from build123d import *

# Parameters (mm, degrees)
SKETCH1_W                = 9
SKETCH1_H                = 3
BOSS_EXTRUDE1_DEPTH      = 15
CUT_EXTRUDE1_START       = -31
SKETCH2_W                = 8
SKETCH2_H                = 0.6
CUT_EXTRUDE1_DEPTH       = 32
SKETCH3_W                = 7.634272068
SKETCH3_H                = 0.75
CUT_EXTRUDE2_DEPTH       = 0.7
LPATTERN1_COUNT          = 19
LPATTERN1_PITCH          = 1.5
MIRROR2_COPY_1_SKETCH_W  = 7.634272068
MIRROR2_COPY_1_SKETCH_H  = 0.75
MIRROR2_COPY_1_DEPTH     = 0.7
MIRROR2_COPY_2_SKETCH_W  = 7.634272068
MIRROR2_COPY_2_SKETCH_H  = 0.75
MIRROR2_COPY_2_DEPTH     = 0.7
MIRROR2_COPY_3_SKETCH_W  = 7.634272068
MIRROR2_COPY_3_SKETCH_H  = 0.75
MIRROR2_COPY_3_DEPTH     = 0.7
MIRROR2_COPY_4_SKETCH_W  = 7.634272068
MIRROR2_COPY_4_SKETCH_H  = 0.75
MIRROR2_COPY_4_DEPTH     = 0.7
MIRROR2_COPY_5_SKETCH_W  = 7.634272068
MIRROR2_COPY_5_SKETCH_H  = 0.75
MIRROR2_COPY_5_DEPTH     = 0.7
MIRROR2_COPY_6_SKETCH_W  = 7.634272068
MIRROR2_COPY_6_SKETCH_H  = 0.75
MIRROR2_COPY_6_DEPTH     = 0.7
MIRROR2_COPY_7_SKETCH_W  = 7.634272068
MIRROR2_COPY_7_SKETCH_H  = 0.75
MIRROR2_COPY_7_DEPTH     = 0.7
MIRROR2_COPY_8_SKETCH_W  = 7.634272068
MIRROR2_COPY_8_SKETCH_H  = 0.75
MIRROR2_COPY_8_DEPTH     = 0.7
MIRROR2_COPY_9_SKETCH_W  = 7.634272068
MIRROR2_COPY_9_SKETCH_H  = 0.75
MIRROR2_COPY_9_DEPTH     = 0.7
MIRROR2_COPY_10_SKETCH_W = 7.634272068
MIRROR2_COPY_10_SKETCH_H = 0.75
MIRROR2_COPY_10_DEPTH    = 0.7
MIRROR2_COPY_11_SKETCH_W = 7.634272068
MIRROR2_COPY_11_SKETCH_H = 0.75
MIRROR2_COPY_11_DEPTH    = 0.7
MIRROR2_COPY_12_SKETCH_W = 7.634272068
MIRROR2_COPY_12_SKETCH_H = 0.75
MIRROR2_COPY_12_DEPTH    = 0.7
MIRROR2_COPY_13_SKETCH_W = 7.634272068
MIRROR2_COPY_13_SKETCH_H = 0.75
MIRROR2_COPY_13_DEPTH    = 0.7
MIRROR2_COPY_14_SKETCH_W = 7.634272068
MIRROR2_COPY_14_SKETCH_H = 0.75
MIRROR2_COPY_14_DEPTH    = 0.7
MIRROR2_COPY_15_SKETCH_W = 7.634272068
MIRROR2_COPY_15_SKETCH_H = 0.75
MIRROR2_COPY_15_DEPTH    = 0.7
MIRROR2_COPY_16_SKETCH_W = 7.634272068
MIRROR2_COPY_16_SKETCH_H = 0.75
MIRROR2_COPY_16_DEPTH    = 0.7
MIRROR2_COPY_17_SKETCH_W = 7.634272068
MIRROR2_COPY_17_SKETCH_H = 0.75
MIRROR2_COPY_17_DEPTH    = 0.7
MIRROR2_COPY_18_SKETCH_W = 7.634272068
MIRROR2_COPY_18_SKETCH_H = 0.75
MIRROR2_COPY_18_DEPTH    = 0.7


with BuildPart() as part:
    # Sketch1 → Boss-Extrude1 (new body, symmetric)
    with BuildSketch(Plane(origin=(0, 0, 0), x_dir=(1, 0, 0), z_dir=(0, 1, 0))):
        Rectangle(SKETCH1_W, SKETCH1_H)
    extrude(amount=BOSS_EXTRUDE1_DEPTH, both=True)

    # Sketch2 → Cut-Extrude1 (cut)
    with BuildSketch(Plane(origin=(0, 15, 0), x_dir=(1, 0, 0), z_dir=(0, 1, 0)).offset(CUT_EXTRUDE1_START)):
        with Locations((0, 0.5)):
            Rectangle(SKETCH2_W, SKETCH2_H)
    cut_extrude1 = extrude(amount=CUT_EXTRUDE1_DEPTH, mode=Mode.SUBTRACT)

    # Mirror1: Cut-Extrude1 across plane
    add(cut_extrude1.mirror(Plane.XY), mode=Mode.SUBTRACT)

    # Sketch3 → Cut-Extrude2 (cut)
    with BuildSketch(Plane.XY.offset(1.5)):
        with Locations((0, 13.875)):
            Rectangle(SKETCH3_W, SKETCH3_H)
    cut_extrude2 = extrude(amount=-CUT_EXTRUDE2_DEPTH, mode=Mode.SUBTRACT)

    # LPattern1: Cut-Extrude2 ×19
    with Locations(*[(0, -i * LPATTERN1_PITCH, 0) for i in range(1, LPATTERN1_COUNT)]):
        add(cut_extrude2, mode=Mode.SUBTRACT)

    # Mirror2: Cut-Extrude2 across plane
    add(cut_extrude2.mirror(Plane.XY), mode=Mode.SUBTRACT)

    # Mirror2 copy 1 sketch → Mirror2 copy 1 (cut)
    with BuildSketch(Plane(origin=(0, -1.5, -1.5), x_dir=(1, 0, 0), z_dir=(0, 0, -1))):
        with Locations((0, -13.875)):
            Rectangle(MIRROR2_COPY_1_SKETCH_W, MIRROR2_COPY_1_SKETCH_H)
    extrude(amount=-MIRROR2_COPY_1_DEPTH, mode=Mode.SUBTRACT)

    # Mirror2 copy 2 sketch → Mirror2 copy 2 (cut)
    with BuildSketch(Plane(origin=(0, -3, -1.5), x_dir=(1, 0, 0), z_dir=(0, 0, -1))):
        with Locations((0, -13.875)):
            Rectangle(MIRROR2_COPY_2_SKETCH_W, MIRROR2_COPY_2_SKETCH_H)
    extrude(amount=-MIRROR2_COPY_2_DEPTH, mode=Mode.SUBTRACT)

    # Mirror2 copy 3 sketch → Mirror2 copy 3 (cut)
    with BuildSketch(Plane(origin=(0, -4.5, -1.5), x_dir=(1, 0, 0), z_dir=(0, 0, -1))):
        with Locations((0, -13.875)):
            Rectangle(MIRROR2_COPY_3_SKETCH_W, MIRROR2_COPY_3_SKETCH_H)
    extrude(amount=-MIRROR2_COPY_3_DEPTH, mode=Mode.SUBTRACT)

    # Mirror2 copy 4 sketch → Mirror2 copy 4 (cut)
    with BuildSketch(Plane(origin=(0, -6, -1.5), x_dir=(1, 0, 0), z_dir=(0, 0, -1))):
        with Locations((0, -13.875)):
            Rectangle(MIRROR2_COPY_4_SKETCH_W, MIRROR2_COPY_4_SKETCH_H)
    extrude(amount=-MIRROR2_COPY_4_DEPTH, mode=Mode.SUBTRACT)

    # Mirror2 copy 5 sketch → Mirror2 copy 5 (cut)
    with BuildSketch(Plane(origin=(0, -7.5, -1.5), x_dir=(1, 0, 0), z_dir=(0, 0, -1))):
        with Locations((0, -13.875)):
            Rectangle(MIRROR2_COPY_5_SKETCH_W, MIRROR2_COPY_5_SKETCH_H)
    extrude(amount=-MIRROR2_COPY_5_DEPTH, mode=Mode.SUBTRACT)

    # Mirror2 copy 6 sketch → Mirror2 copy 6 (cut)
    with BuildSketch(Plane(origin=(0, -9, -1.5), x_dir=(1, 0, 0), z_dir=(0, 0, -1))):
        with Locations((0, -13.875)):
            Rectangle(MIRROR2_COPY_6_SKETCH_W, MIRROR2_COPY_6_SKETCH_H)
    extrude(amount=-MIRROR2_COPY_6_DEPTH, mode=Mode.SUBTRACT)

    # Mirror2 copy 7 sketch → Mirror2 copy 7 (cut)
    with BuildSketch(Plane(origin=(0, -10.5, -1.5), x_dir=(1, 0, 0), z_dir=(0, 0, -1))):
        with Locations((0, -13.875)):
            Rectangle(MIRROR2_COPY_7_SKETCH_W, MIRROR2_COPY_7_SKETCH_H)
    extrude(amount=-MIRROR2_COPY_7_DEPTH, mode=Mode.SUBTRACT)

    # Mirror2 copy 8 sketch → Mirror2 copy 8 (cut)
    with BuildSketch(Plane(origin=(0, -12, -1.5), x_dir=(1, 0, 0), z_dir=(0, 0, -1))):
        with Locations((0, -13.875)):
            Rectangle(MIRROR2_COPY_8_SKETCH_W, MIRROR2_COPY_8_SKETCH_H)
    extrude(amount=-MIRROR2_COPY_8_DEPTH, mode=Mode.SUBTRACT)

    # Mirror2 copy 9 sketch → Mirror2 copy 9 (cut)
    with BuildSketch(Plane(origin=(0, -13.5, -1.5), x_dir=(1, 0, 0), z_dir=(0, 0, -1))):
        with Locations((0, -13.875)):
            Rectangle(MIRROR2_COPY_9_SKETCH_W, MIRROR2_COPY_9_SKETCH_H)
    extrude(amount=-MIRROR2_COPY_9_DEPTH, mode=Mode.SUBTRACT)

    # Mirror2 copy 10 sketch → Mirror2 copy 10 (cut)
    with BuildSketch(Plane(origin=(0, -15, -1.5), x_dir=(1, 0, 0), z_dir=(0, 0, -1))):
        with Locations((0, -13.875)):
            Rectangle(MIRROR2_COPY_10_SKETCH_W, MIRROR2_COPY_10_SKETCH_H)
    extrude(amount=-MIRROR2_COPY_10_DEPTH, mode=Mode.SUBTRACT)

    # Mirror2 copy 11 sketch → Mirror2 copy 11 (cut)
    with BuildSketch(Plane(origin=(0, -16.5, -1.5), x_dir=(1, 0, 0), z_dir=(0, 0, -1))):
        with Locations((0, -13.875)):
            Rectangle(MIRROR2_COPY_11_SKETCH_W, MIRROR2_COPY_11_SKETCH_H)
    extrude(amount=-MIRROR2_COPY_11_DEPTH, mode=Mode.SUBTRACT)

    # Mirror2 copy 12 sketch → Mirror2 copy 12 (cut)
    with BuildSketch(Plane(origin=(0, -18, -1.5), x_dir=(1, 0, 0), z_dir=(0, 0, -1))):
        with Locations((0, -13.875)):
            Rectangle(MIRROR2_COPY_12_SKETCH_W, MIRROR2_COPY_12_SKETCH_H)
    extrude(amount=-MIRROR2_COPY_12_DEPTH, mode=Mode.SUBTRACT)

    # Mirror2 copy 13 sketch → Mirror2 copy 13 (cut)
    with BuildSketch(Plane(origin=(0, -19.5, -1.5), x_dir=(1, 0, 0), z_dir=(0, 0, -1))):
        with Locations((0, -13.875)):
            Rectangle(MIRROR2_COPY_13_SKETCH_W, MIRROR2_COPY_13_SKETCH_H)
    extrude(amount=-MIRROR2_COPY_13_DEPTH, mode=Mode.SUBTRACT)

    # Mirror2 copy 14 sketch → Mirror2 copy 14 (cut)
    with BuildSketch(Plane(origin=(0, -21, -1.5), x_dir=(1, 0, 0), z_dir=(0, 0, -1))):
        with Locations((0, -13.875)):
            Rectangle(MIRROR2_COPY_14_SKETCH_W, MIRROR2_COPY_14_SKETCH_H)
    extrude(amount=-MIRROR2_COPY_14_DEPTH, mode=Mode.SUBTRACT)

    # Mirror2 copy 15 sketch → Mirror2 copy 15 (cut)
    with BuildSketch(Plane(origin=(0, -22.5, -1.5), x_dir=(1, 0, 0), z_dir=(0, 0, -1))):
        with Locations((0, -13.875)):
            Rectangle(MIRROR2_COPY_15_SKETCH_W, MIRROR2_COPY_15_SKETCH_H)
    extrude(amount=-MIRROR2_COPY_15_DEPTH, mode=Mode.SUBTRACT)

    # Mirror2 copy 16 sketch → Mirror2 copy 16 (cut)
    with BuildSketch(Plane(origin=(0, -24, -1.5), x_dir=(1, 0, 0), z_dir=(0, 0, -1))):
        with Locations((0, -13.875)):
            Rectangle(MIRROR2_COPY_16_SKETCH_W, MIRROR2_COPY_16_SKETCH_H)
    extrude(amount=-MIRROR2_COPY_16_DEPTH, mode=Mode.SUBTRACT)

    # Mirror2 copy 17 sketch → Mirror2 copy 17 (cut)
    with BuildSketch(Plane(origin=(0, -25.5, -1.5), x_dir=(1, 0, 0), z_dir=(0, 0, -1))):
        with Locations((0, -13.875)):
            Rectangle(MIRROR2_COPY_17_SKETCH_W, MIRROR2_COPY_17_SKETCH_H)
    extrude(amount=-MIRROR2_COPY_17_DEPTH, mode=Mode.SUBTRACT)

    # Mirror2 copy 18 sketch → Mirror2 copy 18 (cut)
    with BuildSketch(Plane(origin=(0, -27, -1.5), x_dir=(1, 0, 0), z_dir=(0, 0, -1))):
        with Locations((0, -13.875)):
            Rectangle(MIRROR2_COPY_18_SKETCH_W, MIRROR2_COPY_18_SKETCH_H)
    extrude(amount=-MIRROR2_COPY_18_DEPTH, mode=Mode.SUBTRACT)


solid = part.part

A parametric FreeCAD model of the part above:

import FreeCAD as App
import Part
import Sketcher

V = App.Vector


def add_polygon(sketch, points):
    """Adds a closed chain of lines whose ends are joined by coincident constraints."""
    first, n = sketch.GeometryCount, len(points)
    for a, b in zip(points, points[1:] + points[:1]):
        sketch.addGeometry(Part.LineSegment(App.Vector(*a, 0), App.Vector(*b, 0)), False)
    for i in range(n):
        sketch.addConstraint(Sketcher.Constraint("Coincident", first + i, 2, first + (i + 1) % n, 1))

doc = App.newDocument("Part")
body = doc.addObject("PartDesign::Body", "Body")

# Sketch on XZ plane
sketch1 = doc.addObject("Sketcher::SketchObject", "Sketch")
body.addObject(sketch1)
sketch1.AttachmentSupport = (doc.XZ_Plane, [""])
sketch1.MapMode = "FlatFace"
add_polygon(sketch1, [(-4.5, -1.5), (-4.5, 1.5), (4.5, 1.5), (4.5, -1.5)])  # lines 0-3
sketch1.addConstraint(Sketcher.Constraint("Vertical", 0))
sketch1.addConstraint(Sketcher.Constraint("Horizontal", 1))
sketch1.addConstraint(Sketcher.Constraint("Vertical", 2))
sketch1.addConstraint(Sketcher.Constraint("Horizontal", 3))
sketch1.addConstraint(Sketcher.Constraint("Symmetric", 0, 2, 2, 2, -1, 1))
sketch1.addConstraint(Sketcher.Constraint("DistanceX", 1, 1, 1, 2, 9.0))
sketch1.addConstraint(Sketcher.Constraint("DistanceY", 0, 1, 0, 2, 3.0))
pad1 = doc.addObject("PartDesign::Pad", "Pad")
body.addObject(pad1)
pad1.Profile = sketch1
pad1.Length = 30
pad1.Midplane = True

# Sketch on XZ plane
sketch2 = doc.addObject("Sketcher::SketchObject", "Sketch001")
body.addObject(sketch2)
sketch2.AttachmentSupport = (doc.XZ_Plane, [""])
sketch2.MapMode = "FlatFace"
sketch2.AttachmentOffset = App.Placement(V(0, 0, 16), App.Rotation())
add_polygon(sketch2, [(-4, -0.8), (-4, -0.2), (4, -0.2), (4, -0.8)])  # lines 0-3
sketch2.addConstraint(Sketcher.Constraint("Vertical", 0))
sketch2.addConstraint(Sketcher.Constraint("Horizontal", 1))
sketch2.addConstraint(Sketcher.Constraint("Vertical", 2))
sketch2.addConstraint(Sketcher.Constraint("Horizontal", 3))
sketch2.addConstraint(Sketcher.Constraint("DistanceX", 1, 1, 1, 2, 8.0))
sketch2.addConstraint(Sketcher.Constraint("DistanceY", 0, 1, 0, 2, 0.6))
sketch2.addConstraint(Sketcher.Constraint("DistanceX", 0, 2, -1, 1, 4.0))
sketch2.addConstraint(Sketcher.Constraint("DistanceY", 0, 2, -1, 1, 0.2))
pocket1 = doc.addObject("PartDesign::Pocket", "Pocket")
body.addObject(pocket1)
pocket1.Profile = sketch2
pocket1.Length = 32
doc.recompute()

mirrored = doc.addObject("PartDesign::Mirrored", "Mirrored")
body.addObject(mirrored)
mirrored.Originals = [pocket1]
mirrored.MirrorPlane = (doc.XY_Plane, [""])
body.Tip = mirrored

# Sketch on XY plane
sketch3 = doc.addObject("Sketcher::SketchObject", "Sketch002")
body.addObject(sketch3)
sketch3.AttachmentSupport = (doc.XY_Plane, [""])
sketch3.MapMode = "FlatFace"
sketch3.AttachmentOffset = App.Placement(V(0, 0, 1.5), App.Rotation())
add_polygon(sketch3, [(-3.8, 14.2), (-3.8, 13.5), (3.8, 13.5), (3.8, 14.2)])  # lines 0-3
sketch3.addConstraint(Sketcher.Constraint("Vertical", 0))
sketch3.addConstraint(Sketcher.Constraint("Horizontal", 1))
sketch3.addConstraint(Sketcher.Constraint("Vertical", 2))
sketch3.addConstraint(Sketcher.Constraint("Horizontal", 3))
sketch3.addConstraint(Sketcher.Constraint("DistanceY", 0, 2, 0, 1, 0.75))
sketch3.addConstraint(Sketcher.Constraint("DistanceY", -1, 1, 0, 2, 13.5))
sketch3.addConstraint(Sketcher.Constraint("DistanceX", 1, 1, 1, 2, 7.634272))
sketch3.addConstraint(Sketcher.Constraint("DistanceX", 0, 2, -1, 1, 3.817136))
pocket2 = doc.addObject("PartDesign::Pocket", "Pocket001")
body.addObject(pocket2)
pocket2.Profile = sketch3
pocket2.Length = 0.7
doc.recompute()

linearpattern = doc.addObject("PartDesign::LinearPattern", "LinearPattern")
body.addObject(linearpattern)
linearpattern.Originals = [pocket2]
linearpattern.Direction = (doc.Y_Axis, [""])
linearpattern.Mode = "offset"
linearpattern.Offset = 1.5
linearpattern.Occurrences = 19
linearpattern.Reversed = True
body.Tip = linearpattern
doc.recompute()

mirrored2 = doc.addObject("PartDesign::Mirrored", "Mirrored001")
body.addObject(mirrored2)
mirrored2.Originals = [pocket2]
mirrored2.MirrorPlane = (doc.XY_Plane, [""])
body.Tip = mirrored2

# Sketch on XY plane
sketch4 = doc.addObject("Sketcher::SketchObject", "Sketch003")
body.addObject(sketch4)
sketch4.AttachmentSupport = (doc.XY_Plane, [""])
sketch4.MapMode = "FlatFace"
sketch4.AttachmentOffset = App.Placement(V(0, 0, -1.5), App.Rotation())
add_polygon(sketch4, [(-3.8, 12), (-3.8, 12.8), (3.8, 12.8), (3.8, 12)])  # lines 0-3
sketch4.addConstraint(Sketcher.Constraint("Vertical", 0))
sketch4.addConstraint(Sketcher.Constraint("Horizontal", 1))
sketch4.addConstraint(Sketcher.Constraint("Vertical", 2))
sketch4.addConstraint(Sketcher.Constraint("Horizontal", 3))
sketch4.addConstraint(Sketcher.Constraint("DistanceY", -1, 1, 2, 2, 12.0))
sketch4.addConstraint(Sketcher.Constraint("DistanceY", 0, 1, 0, 2, 0.75))
sketch4.addConstraint(Sketcher.Constraint("DistanceX", 1, 1, 1, 2, 7.634272))
sketch4.addConstraint(Sketcher.Constraint("DistanceX", 0, 2, -1, 1, 3.817136))
pocket3 = doc.addObject("PartDesign::Pocket", "Pocket002")
body.addObject(pocket3)
pocket3.Profile = sketch4
pocket3.Length = 0.7
pocket3.Reversed = True

# Sketch on XY plane
sketch5 = doc.addObject("Sketcher::SketchObject", "Sketch004")
body.addObject(sketch5)
sketch5.AttachmentSupport = (doc.XY_Plane, [""])
sketch5.MapMode = "FlatFace"
sketch5.AttachmentOffset = App.Placement(V(0, 0, -1.5), App.Rotation())
add_polygon(sketch5, [(-3.8, 10.5), (-3.8, 11.2), (3.8, 11.2), (3.8, 10.5)])  # lines 0-3
sketch5.addConstraint(Sketcher.Constraint("Vertical", 0))
sketch5.addConstraint(Sketcher.Constraint("Horizontal", 1))
sketch5.addConstraint(Sketcher.Constraint("Vertical", 2))
sketch5.addConstraint(Sketcher.Constraint("Horizontal", 3))
sketch5.addConstraint(Sketcher.Constraint("DistanceY", 0, 1, 0, 2, 0.75))
sketch5.addConstraint(Sketcher.Constraint("DistanceY", -1, 1, 2, 2, 10.5))
sketch5.addConstraint(Sketcher.Constraint("DistanceX", 1, 1, 1, 2, 7.634272))
sketch5.addConstraint(Sketcher.Constraint("DistanceX", 0, 2, -1, 1, 3.817136))
pocket4 = doc.addObject("PartDesign::Pocket", "Pocket003")
body.addObject(pocket4)
pocket4.Profile = sketch5
pocket4.Length = 0.7
pocket4.Reversed = True

# Sketch on XY plane
sketch6 = doc.addObject("Sketcher::SketchObject", "Sketch005")
body.addObject(sketch6)
sketch6.AttachmentSupport = (doc.XY_Plane, [""])
sketch6.MapMode = "FlatFace"
sketch6.AttachmentOffset = App.Placement(V(0, 0, -1.5), App.Rotation())
add_polygon(sketch6, [(-3.8, 9), (-3.8, 9.8), (3.8, 9.8), (3.8, 9)])  # lines 0-3
sketch6.addConstraint(Sketcher.Constraint("Vertical", 0))
sketch6.addConstraint(Sketcher.Constraint("Horizontal", 1))
sketch6.addConstraint(Sketcher.Constraint("Vertical", 2))
sketch6.addConstraint(Sketcher.Constraint("Horizontal", 3))
sketch6.addConstraint(Sketcher.Constraint("DistanceY", -1, 1, 2, 2, 9.0))
sketch6.addConstraint(Sketcher.Constraint("DistanceY", 0, 1, 0, 2, 0.75))
sketch6.addConstraint(Sketcher.Constraint("DistanceX", 1, 1, 1, 2, 7.634272))
sketch6.addConstraint(Sketcher.Constraint("DistanceX", 0, 2, -1, 1, 3.817136))
pocket5 = doc.addObject("PartDesign::Pocket", "Pocket004")
body.addObject(pocket5)
pocket5.Profile = sketch6
pocket5.Length = 0.7
pocket5.Reversed = True

# Sketch on XY plane
sketch7 = doc.addObject("Sketcher::SketchObject", "Sketch006")
body.addObject(sketch7)
sketch7.AttachmentSupport = (doc.XY_Plane, [""])
sketch7.MapMode = "FlatFace"
sketch7.AttachmentOffset = App.Placement(V(0, 0, -1.5), App.Rotation())
add_polygon(sketch7, [(-3.8, 7.5), (-3.8, 8.2), (3.8, 8.2), (3.8, 7.5)])  # lines 0-3
sketch7.addConstraint(Sketcher.Constraint("Vertical", 0))
sketch7.addConstraint(Sketcher.Constraint("Horizontal", 1))
sketch7.addConstraint(Sketcher.Constraint("Vertical", 2))
sketch7.addConstraint(Sketcher.Constraint("Horizontal", 3))
sketch7.addConstraint(Sketcher.Constraint("DistanceY", 0, 1, 0, 2, 0.75))
sketch7.addConstraint(Sketcher.Constraint("DistanceY", -1, 1, 2, 2, 7.5))
sketch7.addConstraint(Sketcher.Constraint("DistanceX", 1, 1, 1, 2, 7.634272))
sketch7.addConstraint(Sketcher.Constraint("DistanceX", 0, 2, -1, 1, 3.817136))
pocket6 = doc.addObject("PartDesign::Pocket", "Pocket005")
body.addObject(pocket6)
pocket6.Profile = sketch7
pocket6.Length = 0.7
pocket6.Reversed = True

# Sketch on XY plane
sketch8 = doc.addObject("Sketcher::SketchObject", "Sketch007")
body.addObject(sketch8)
sketch8.AttachmentSupport = (doc.XY_Plane, [""])
sketch8.MapMode = "FlatFace"
sketch8.AttachmentOffset = App.Placement(V(0, 0, -1.5), App.Rotation())
add_polygon(sketch8, [(-3.8, 6), (-3.8, 6.8), (3.8, 6.8), (3.8, 6)])  # lines 0-3
sketch8.addConstraint(Sketcher.Constraint("Vertical", 0))
sketch8.addConstraint(Sketcher.Constraint("Horizontal", 1))
sketch8.addConstraint(Sketcher.Constraint("Vertical", 2))
sketch8.addConstraint(Sketcher.Constraint("Horizontal", 3))
sketch8.addConstraint(Sketcher.Constraint("DistanceY", -1, 1, 2, 2, 6.0))
sketch8.addConstraint(Sketcher.Constraint("DistanceY", 0, 1, 0, 2, 0.75))
sketch8.addConstraint(Sketcher.Constraint("DistanceX", 1, 1, 1, 2, 7.634272))
sketch8.addConstraint(Sketcher.Constraint("DistanceX", 0, 2, -1, 1, 3.817136))
pocket7 = doc.addObject("PartDesign::Pocket", "Pocket006")
body.addObject(pocket7)
pocket7.Profile = sketch8
pocket7.Length = 0.7
pocket7.Reversed = True

# Sketch on XY plane
sketch9 = doc.addObject("Sketcher::SketchObject", "Sketch008")
body.addObject(sketch9)
sketch9.AttachmentSupport = (doc.XY_Plane, [""])
sketch9.MapMode = "FlatFace"
sketch9.AttachmentOffset = App.Placement(V(0, 0, -1.5), App.Rotation())
add_polygon(sketch9, [(-3.8, 4.5), (-3.8, 5.2), (3.8, 5.2), (3.8, 4.5)])  # lines 0-3
sketch9.addConstraint(Sketcher.Constraint("Vertical", 0))
sketch9.addConstraint(Sketcher.Constraint("Horizontal", 1))
sketch9.addConstraint(Sketcher.Constraint("Vertical", 2))
sketch9.addConstraint(Sketcher.Constraint("Horizontal", 3))
sketch9.addConstraint(Sketcher.Constraint("DistanceY", 0, 1, 0, 2, 0.75))
sketch9.addConstraint(Sketcher.Constraint("DistanceY", -1, 1, 2, 2, 4.5))
sketch9.addConstraint(Sketcher.Constraint("DistanceX", 1, 1, 1, 2, 7.634272))
sketch9.addConstraint(Sketcher.Constraint("DistanceX", 0, 2, -1, 1, 3.817136))
pocket8 = doc.addObject("PartDesign::Pocket", "Pocket007")
body.addObject(pocket8)
pocket8.Profile = sketch9
pocket8.Length = 0.7
pocket8.Reversed = True

# Sketch on XY plane
sketch10 = doc.addObject("Sketcher::SketchObject", "Sketch009")
body.addObject(sketch10)
sketch10.AttachmentSupport = (doc.XY_Plane, [""])
sketch10.MapMode = "FlatFace"
sketch10.AttachmentOffset = App.Placement(V(0, 0, -1.5), App.Rotation())
add_polygon(sketch10, [(-3.8, 3), (-3.8, 3.8), (3.8, 3.8), (3.8, 3)])  # lines 0-3
sketch10.addConstraint(Sketcher.Constraint("Vertical", 0))
sketch10.addConstraint(Sketcher.Constraint("Horizontal", 1))
sketch10.addConstraint(Sketcher.Constraint("Vertical", 2))
sketch10.addConstraint(Sketcher.Constraint("Horizontal", 3))
sketch10.addConstraint(Sketcher.Constraint("DistanceY", -1, 1, 2, 2, 3.0))
sketch10.addConstraint(Sketcher.Constraint("DistanceY", 0, 1, 0, 2, 0.75))
sketch10.addConstraint(Sketcher.Constraint("DistanceX", 1, 1, 1, 2, 7.634272))
sketch10.addConstraint(Sketcher.Constraint("DistanceX", 0, 2, -1, 1, 3.817136))
pocket9 = doc.addObject("PartDesign::Pocket", "Pocket008")
body.addObject(pocket9)
pocket9.Profile = sketch10
pocket9.Length = 0.7
pocket9.Reversed = True

# Sketch on XY plane
sketch11 = doc.addObject("Sketcher::SketchObject", "Sketch010")
body.addObject(sketch11)
sketch11.AttachmentSupport = (doc.XY_Plane, [""])
sketch11.MapMode = "FlatFace"
sketch11.AttachmentOffset = App.Placement(V(0, 0, -1.5), App.Rotation())
add_polygon(sketch11, [(-3.8, 1.5), (-3.8, 2.2), (3.8, 2.2), (3.8, 1.5)])  # lines 0-3
sketch11.addConstraint(Sketcher.Constraint("Vertical", 0))
sketch11.addConstraint(Sketcher.Constraint("Horizontal", 1))
sketch11.addConstraint(Sketcher.Constraint("Vertical", 2))
sketch11.addConstraint(Sketcher.Constraint("Horizontal", 3))
sketch11.addConstraint(Sketcher.Constraint("DistanceY", 0, 1, 0, 2, 0.75))
sketch11.addConstraint(Sketcher.Constraint("DistanceY", -1, 1, 2, 2, 1.5))
sketch11.addConstraint(Sketcher.Constraint("DistanceX", 1, 1, 1, 2, 7.634272))
sketch11.addConstraint(Sketcher.Constraint("DistanceX", 0, 2, -1, 1, 3.817136))
pocket10 = doc.addObject("PartDesign::Pocket", "Pocket009")
body.addObject(pocket10)
pocket10.Profile = sketch11
pocket10.Length = 0.7
pocket10.Reversed = True

# Sketch on XY plane
sketch12 = doc.addObject("Sketcher::SketchObject", "Sketch011")
body.addObject(sketch12)
sketch12.AttachmentSupport = (doc.XY_Plane, [""])
sketch12.MapMode = "FlatFace"
sketch12.AttachmentOffset = App.Placement(V(0, 0, -1.5), App.Rotation())
add_polygon(sketch12, [(-3.8, 0), (-3.8, 0.8), (3.8, 0.8), (3.8, 0)])  # lines 0-3
sketch12.addConstraint(Sketcher.Constraint("Vertical", 0))
sketch12.addConstraint(Sketcher.Constraint("Horizontal", 1))
sketch12.addConstraint(Sketcher.Constraint("Vertical", 2))
sketch12.addConstraint(Sketcher.Constraint("Horizontal", 3))
sketch12.addConstraint(Sketcher.Constraint("Symmetric", 2, 2, 3, 2, -1, 1))
sketch12.addConstraint(Sketcher.Constraint("DistanceY", 0, 1, 0, 2, 0.75))
sketch12.addConstraint(Sketcher.Constraint("DistanceX", 1, 1, 1, 2, 7.634272))
pocket11 = doc.addObject("PartDesign::Pocket", "Pocket010")
body.addObject(pocket11)
pocket11.Profile = sketch12
pocket11.Length = 0.7
pocket11.Reversed = True

# Sketch on XY plane
sketch13 = doc.addObject("Sketcher::SketchObject", "Sketch012")
body.addObject(sketch13)
sketch13.AttachmentSupport = (doc.XY_Plane, [""])
sketch13.MapMode = "FlatFace"
sketch13.AttachmentOffset = App.Placement(V(0, 0, -1.5), App.Rotation())
add_polygon(sketch13, [(-3.8, -1.5), (-3.8, -0.8), (3.8, -0.8), (3.8, -1.5)])  # lines 0-3
sketch13.addConstraint(Sketcher.Constraint("Vertical", 0))
sketch13.addConstraint(Sketcher.Constraint("Horizontal", 1))
sketch13.addConstraint(Sketcher.Constraint("Vertical", 2))
sketch13.addConstraint(Sketcher.Constraint("Horizontal", 3))
sketch13.addConstraint(Sketcher.Constraint("DistanceY", 0, 1, 0, 2, 0.75))
sketch13.addConstraint(Sketcher.Constraint("DistanceY", 2, 2, -1, 1, 1.5))
sketch13.addConstraint(Sketcher.Constraint("DistanceX", 1, 1, 1, 2, 7.634272))
sketch13.addConstraint(Sketcher.Constraint("DistanceX", 0, 2, -1, 1, 3.817136))
pocket12 = doc.addObject("PartDesign::Pocket", "Pocket011")
body.addObject(pocket12)
pocket12.Profile = sketch13
pocket12.Length = 0.7
pocket12.Reversed = True

# Sketch on XY plane
sketch14 = doc.addObject("Sketcher::SketchObject", "Sketch013")
body.addObject(sketch14)
sketch14.AttachmentSupport = (doc.XY_Plane, [""])
sketch14.MapMode = "FlatFace"
sketch14.AttachmentOffset = App.Placement(V(0, 0, -1.5), App.Rotation())
add_polygon(sketch14, [(-3.8, -3), (-3.8, -2.2), (3.8, -2.2), (3.8, -3)])  # lines 0-3
sketch14.addConstraint(Sketcher.Constraint("Vertical", 0))
sketch14.addConstraint(Sketcher.Constraint("Horizontal", 1))
sketch14.addConstraint(Sketcher.Constraint("Vertical", 2))
sketch14.addConstraint(Sketcher.Constraint("Horizontal", 3))
sketch14.addConstraint(Sketcher.Constraint("DistanceY", 2, 2, -1, 1, 3.0))
sketch14.addConstraint(Sketcher.Constraint("DistanceY", 0, 1, 0, 2, 0.75))
sketch14.addConstraint(Sketcher.Constraint("DistanceX", 1, 1, 1, 2, 7.634272))
sketch14.addConstraint(Sketcher.Constraint("DistanceX", 0, 2, -1, 1, 3.817136))
pocket13 = doc.addObject("PartDesign::Pocket", "Pocket012")
body.addObject(pocket13)
pocket13.Profile = sketch14
pocket13.Length = 0.7
pocket13.Reversed = True

# Sketch on XY plane
sketch15 = doc.addObject("Sketcher::SketchObject", "Sketch014")
body.addObject(sketch15)
sketch15.AttachmentSupport = (doc.XY_Plane, [""])
sketch15.MapMode = "FlatFace"
sketch15.AttachmentOffset = App.Placement(V(0, 0, -1.5), App.Rotation())
add_polygon(sketch15, [(-3.8, -4.5), (-3.8, -3.8), (3.8, -3.8), (3.8, -4.5)])  # lines 0-3
sketch15.addConstraint(Sketcher.Constraint("Vertical", 0))
sketch15.addConstraint(Sketcher.Constraint("Horizontal", 1))
sketch15.addConstraint(Sketcher.Constraint("Vertical", 2))
sketch15.addConstraint(Sketcher.Constraint("Horizontal", 3))
sketch15.addConstraint(Sketcher.Constraint("DistanceY", 0, 1, 0, 2, 0.75))
sketch15.addConstraint(Sketcher.Constraint("DistanceY", 2, 2, -1, 1, 4.5))
sketch15.addConstraint(Sketcher.Constraint("DistanceX", 1, 1, 1, 2, 7.634272))
sketch15.addConstraint(Sketcher.Constraint("DistanceX", 0, 2, -1, 1, 3.817136))
pocket14 = doc.addObject("PartDesign::Pocket", "Pocket013")
body.addObject(pocket14)
pocket14.Profile = sketch15
pocket14.Length = 0.7
pocket14.Reversed = True

# Sketch on XY plane
sketch16 = doc.addObject("Sketcher::SketchObject", "Sketch015")
body.addObject(sketch16)
sketch16.AttachmentSupport = (doc.XY_Plane, [""])
sketch16.MapMode = "FlatFace"
sketch16.AttachmentOffset = App.Placement(V(0, 0, -1.5), App.Rotation())
add_polygon(sketch16, [(-3.8, -6), (-3.8, -5.2), (3.8, -5.2), (3.8, -6)])  # lines 0-3
sketch16.addConstraint(Sketcher.Constraint("Vertical", 0))
sketch16.addConstraint(Sketcher.Constraint("Horizontal", 1))
sketch16.addConstraint(Sketcher.Constraint("Vertical", 2))
sketch16.addConstraint(Sketcher.Constraint("Horizontal", 3))
sketch16.addConstraint(Sketcher.Constraint("DistanceY", 2, 2, -1, 1, 6.0))
sketch16.addConstraint(Sketcher.Constraint("DistanceY", 0, 1, 0, 2, 0.75))
sketch16.addConstraint(Sketcher.Constraint("DistanceX", 1, 1, 1, 2, 7.634272))
sketch16.addConstraint(Sketcher.Constraint("DistanceX", 0, 2, -1, 1, 3.817136))
pocket15 = doc.addObject("PartDesign::Pocket", "Pocket014")
body.addObject(pocket15)
pocket15.Profile = sketch16
pocket15.Length = 0.7
pocket15.Reversed = True

# Sketch on XY plane
sketch17 = doc.addObject("Sketcher::SketchObject", "Sketch016")
body.addObject(sketch17)
sketch17.AttachmentSupport = (doc.XY_Plane, [""])
sketch17.MapMode = "FlatFace"
sketch17.AttachmentOffset = App.Placement(V(0, 0, -1.5), App.Rotation())
add_polygon(sketch17, [(-3.8, -7.5), (-3.8, -6.8), (3.8, -6.8), (3.8, -7.5)])  # lines 0-3
sketch17.addConstraint(Sketcher.Constraint("Vertical", 0))
sketch17.addConstraint(Sketcher.Constraint("Horizontal", 1))
sketch17.addConstraint(Sketcher.Constraint("Vertical", 2))
sketch17.addConstraint(Sketcher.Constraint("Horizontal", 3))
sketch17.addConstraint(Sketcher.Constraint("DistanceY", 0, 1, 0, 2, 0.75))
sketch17.addConstraint(Sketcher.Constraint("DistanceY", 2, 2, -1, 1, 7.5))
sketch17.addConstraint(Sketcher.Constraint("DistanceX", 1, 1, 1, 2, 7.634272))
sketch17.addConstraint(Sketcher.Constraint("DistanceX", 0, 2, -1, 1, 3.817136))
pocket16 = doc.addObject("PartDesign::Pocket", "Pocket015")
body.addObject(pocket16)
pocket16.Profile = sketch17
pocket16.Length = 0.7
pocket16.Reversed = True

# Sketch on XY plane
sketch18 = doc.addObject("Sketcher::SketchObject", "Sketch017")
body.addObject(sketch18)
sketch18.AttachmentSupport = (doc.XY_Plane, [""])
sketch18.MapMode = "FlatFace"
sketch18.AttachmentOffset = App.Placement(V(0, 0, -1.5), App.Rotation())
add_polygon(sketch18, [(-3.8, -9), (-3.8, -8.2), (3.8, -8.2), (3.8, -9)])  # lines 0-3
sketch18.addConstraint(Sketcher.Constraint("Vertical", 0))
sketch18.addConstraint(Sketcher.Constraint("Horizontal", 1))
sketch18.addConstraint(Sketcher.Constraint("Vertical", 2))
sketch18.addConstraint(Sketcher.Constraint("Horizontal", 3))
sketch18.addConstraint(Sketcher.Constraint("DistanceY", 2, 2, -1, 1, 9.0))
sketch18.addConstraint(Sketcher.Constraint("DistanceY", 0, 1, 0, 2, 0.75))
sketch18.addConstraint(Sketcher.Constraint("DistanceX", 1, 1, 1, 2, 7.634272))
sketch18.addConstraint(Sketcher.Constraint("DistanceX", 0, 2, -1, 1, 3.817136))
pocket17 = doc.addObject("PartDesign::Pocket", "Pocket016")
body.addObject(pocket17)
pocket17.Profile = sketch18
pocket17.Length = 0.7
pocket17.Reversed = True

# Sketch on XY plane
sketch19 = doc.addObject("Sketcher::SketchObject", "Sketch018")
body.addObject(sketch19)
sketch19.AttachmentSupport = (doc.XY_Plane, [""])
sketch19.MapMode = "FlatFace"
sketch19.AttachmentOffset = App.Placement(V(0, 0, -1.5), App.Rotation())
add_polygon(sketch19, [(-3.8, -10.5), (-3.8, -9.8), (3.8, -9.8), (3.8, -10.5)])  # lines 0-3
sketch19.addConstraint(Sketcher.Constraint("Vertical", 0))
sketch19.addConstraint(Sketcher.Constraint("Horizontal", 1))
sketch19.addConstraint(Sketcher.Constraint("Vertical", 2))
sketch19.addConstraint(Sketcher.Constraint("Horizontal", 3))
sketch19.addConstraint(Sketcher.Constraint("DistanceY", 0, 1, 0, 2, 0.75))
sketch19.addConstraint(Sketcher.Constraint("DistanceY", 2, 2, -1, 1, 10.5))
sketch19.addConstraint(Sketcher.Constraint("DistanceX", 1, 1, 1, 2, 7.634272))
sketch19.addConstraint(Sketcher.Constraint("DistanceX", 0, 2, -1, 1, 3.817136))
pocket18 = doc.addObject("PartDesign::Pocket", "Pocket017")
body.addObject(pocket18)
pocket18.Profile = sketch19
pocket18.Length = 0.7
pocket18.Reversed = True

# Sketch on XY plane
sketch20 = doc.addObject("Sketcher::SketchObject", "Sketch019")
body.addObject(sketch20)
sketch20.AttachmentSupport = (doc.XY_Plane, [""])
sketch20.MapMode = "FlatFace"
sketch20.AttachmentOffset = App.Placement(V(0, 0, -1.5), App.Rotation())
add_polygon(sketch20, [(-3.8, -12), (-3.8, -11.2), (3.8, -11.2), (3.8, -12)])  # lines 0-3
sketch20.addConstraint(Sketcher.Constraint("Vertical", 0))
sketch20.addConstraint(Sketcher.Constraint("Horizontal", 1))
sketch20.addConstraint(Sketcher.Constraint("Vertical", 2))
sketch20.addConstraint(Sketcher.Constraint("Horizontal", 3))
sketch20.addConstraint(Sketcher.Constraint("DistanceY", 2, 2, -1, 1, 12.0))
sketch20.addConstraint(Sketcher.Constraint("DistanceY", 0, 1, 0, 2, 0.75))
sketch20.addConstraint(Sketcher.Constraint("DistanceX", 1, 1, 1, 2, 7.634272))
sketch20.addConstraint(Sketcher.Constraint("DistanceX", 0, 2, -1, 1, 3.817136))
pocket19 = doc.addObject("PartDesign::Pocket", "Pocket018")
body.addObject(pocket19)
pocket19.Profile = sketch20
pocket19.Length = 0.7
pocket19.Reversed = True

# Sketch on XY plane
sketch21 = doc.addObject("Sketcher::SketchObject", "Sketch020")
body.addObject(sketch21)
sketch21.AttachmentSupport = (doc.XY_Plane, [""])
sketch21.MapMode = "FlatFace"
sketch21.AttachmentOffset = App.Placement(V(0, 0, -1.5), App.Rotation())
add_polygon(sketch21, [(-3.8, -13.5), (-3.8, -12.8), (3.8, -12.8), (3.8, -13.5)])  # lines 0-3
sketch21.addConstraint(Sketcher.Constraint("Vertical", 0))
sketch21.addConstraint(Sketcher.Constraint("Horizontal", 1))
sketch21.addConstraint(Sketcher.Constraint("Vertical", 2))
sketch21.addConstraint(Sketcher.Constraint("Horizontal", 3))
sketch21.addConstraint(Sketcher.Constraint("DistanceY", 0, 1, 0, 2, 0.75))
sketch21.addConstraint(Sketcher.Constraint("DistanceY", 2, 2, -1, 1, 13.5))
sketch21.addConstraint(Sketcher.Constraint("DistanceX", 1, 1, 1, 2, 7.634272))
sketch21.addConstraint(Sketcher.Constraint("DistanceX", 0, 2, -1, 1, 3.817136))
pocket20 = doc.addObject("PartDesign::Pocket", "Pocket019")
body.addObject(pocket20)
pocket20.Profile = sketch21
pocket20.Length = 0.7
pocket20.Reversed = True

doc.recompute()
